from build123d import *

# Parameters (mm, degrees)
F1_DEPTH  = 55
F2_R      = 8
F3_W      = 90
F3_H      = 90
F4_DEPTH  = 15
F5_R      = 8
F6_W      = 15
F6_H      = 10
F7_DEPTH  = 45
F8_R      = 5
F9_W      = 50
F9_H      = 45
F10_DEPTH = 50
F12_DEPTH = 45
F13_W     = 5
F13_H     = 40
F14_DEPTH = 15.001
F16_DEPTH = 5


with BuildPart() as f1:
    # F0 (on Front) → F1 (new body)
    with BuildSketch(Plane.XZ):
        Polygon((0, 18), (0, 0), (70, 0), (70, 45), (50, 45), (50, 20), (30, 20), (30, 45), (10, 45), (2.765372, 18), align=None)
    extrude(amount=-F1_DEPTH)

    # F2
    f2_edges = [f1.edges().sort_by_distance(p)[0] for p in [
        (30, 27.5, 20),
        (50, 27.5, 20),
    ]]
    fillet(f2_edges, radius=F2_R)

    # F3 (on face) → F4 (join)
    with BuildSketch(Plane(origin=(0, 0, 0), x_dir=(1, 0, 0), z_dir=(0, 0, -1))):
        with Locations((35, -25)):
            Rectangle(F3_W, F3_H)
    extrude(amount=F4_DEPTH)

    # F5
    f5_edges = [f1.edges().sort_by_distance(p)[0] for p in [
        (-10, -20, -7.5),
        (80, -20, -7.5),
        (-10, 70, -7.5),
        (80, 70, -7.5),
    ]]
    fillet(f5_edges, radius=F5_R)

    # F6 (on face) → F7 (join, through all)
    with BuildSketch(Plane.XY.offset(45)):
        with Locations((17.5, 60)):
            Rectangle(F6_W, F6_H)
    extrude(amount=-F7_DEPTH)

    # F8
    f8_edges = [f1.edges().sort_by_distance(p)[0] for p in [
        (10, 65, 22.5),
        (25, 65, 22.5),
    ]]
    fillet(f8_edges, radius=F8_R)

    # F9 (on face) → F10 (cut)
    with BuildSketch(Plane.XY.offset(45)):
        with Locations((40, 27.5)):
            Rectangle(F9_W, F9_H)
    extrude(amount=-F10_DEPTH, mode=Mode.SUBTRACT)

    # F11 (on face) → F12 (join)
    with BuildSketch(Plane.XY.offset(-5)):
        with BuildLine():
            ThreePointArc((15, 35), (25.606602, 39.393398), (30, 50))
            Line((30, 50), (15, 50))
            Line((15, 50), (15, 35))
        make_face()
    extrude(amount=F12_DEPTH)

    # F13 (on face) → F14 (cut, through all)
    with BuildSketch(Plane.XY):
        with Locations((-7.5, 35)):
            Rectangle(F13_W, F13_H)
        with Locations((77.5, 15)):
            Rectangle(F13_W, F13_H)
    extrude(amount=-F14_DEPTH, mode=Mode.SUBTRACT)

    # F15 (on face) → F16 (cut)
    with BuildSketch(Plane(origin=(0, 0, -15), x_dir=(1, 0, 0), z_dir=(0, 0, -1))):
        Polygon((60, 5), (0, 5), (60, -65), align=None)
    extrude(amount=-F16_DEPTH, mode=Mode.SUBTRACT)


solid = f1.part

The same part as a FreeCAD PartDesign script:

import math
import FreeCAD as App
import Part
import Sketcher
from FreeCAD import Vector
Q = App.Units.Quantity


def edges_at(feature, points):
    """Names of the edges that pass closest to the given points."""
    edges = feature.Shape.Edges
    near = lambda p: min(range(len(edges)), key=lambda i: edges[i].distToShape(Part.Vertex(*p))[0])
    return sorted({f"Edge{near(p) + 1}" for p in points})


def add_polygon(sketch, points):
    """Adds a closed chain of lines whose ends are joined by coincident constraints."""
    first, n = sketch.GeometryCount, len(points)
    for a, b in zip(points, points[1:] + points[:1]):
        sketch.addGeometry(Part.LineSegment(App.Vector(*a, 0), App.Vector(*b, 0)), False)
    for i in range(n):
        sketch.addConstraint(Sketcher.Constraint("Coincident", first + i, 2, first + (i + 1) % n, 1))

doc = App.newDocument("Part")
body = doc.addObject("PartDesign::Body", "Body")

# Sketch on XZ plane
sketch1 = body.newObject("Sketcher::SketchObject", "Sketch")
sketch1.AttachmentSupport = (doc.getObject("XZ_Plane"), [""])
sketch1.MapMode = "FlatFace"
add_polygon(sketch1, [(0, 18), (0, 0), (70, 0), (70, 45), (50, 45), (50, 20), (30, 20), (30, 45), (10, 45), (2.8, 18)])  # lines 0-9
sketch1.addConstraint(Sketcher.Constraint("Vertical", 0))
sketch1.addConstraint(Sketcher.Constraint("Horizontal", 1))
sketch1.addConstraint(Sketcher.Constraint("Vertical", 2))
sketch1.addConstraint(Sketcher.Constraint("Horizontal", 3))
sketch1.addConstraint(Sketcher.Constraint("Vertical", 4))
sketch1.addConstraint(Sketcher.Constraint("Horizontal", 5))
sketch1.addConstraint(Sketcher.Constraint("Vertical", 6))
sketch1.addConstraint(Sketcher.Constraint("Horizontal", 7))
sketch1.addConstraint(Sketcher.Constraint("Horizontal", 9))
sketch1.addConstraint(Sketcher.Constraint("Coincident", 0, 2, -1, 1))
sketch1.addConstraint(Sketcher.Constraint("Horizontal", 3, 2, 6, 2))
sketch1.addConstraint(Sketcher.Constraint("Equal", 3, 5))
sketch1.addConstraint(Sketcher.Constraint("Equal", 5, 7))
sketch1.addConstraint(Sketcher.Constraint("DistanceX", 1, 1, 1, 2, Q("70 mm")))
sketch1.addConstraint(Sketcher.Constraint("DistanceX", 3, 2, 3, 1, Q("20 mm")))
sketch1.addConstraint(Sketcher.Constraint("DistanceY", 0, 2, 0, 1, Q("18 mm")))
sketch1.addConstraint(Sketcher.Constraint("DistanceY", 2, 1, 2, 2, Q("45 mm")))
sketch1.addConstraint(Sketcher.Constraint("DistanceY", 4, 2, 4, 1, Q("25 mm")))
sketch1.addConstraint(Sketcher.Constraint("Angle", 8, Q("-105 deg")))
pad1 = body.newObject("PartDesign::Pad", "Pad")
pad1.Profile = sketch1
pad1.Length = 55
pad1.Reversed = True
doc.recompute()

fillet = body.newObject("PartDesign::Fillet", "Fillet")
fillet.Base = (pad1, edges_at(pad1, [(30, 27.5, 20), (50, 27.5, 20)]))
fillet.Radius = 8

# Sketch on XY plane
sketch2 = body.newObject("Sketcher::SketchObject", "Sketch001")
sketch2.AttachmentSupport = (doc.getObject("XY_Plane"), [""])
sketch2.MapMode = "FlatFace"
add_polygon(sketch2, [(-10, -20), (-10, 70), (80, 70), (80, -20)])  # lines 0-3
sketch2.addConstraint(Sketcher.Constraint("Vertical", 0))
sketch2.addConstraint(Sketcher.Constraint("Horizontal", 1))
sketch2.addConstraint(Sketcher.Constraint("Vertical", 2))
sketch2.addConstraint(Sketcher.Constraint("Horizontal", 3))
sketch2.addConstraint(Sketcher.Constraint("Equal", 3, 0))
sketch2.addConstraint(Sketcher.Constraint("DistanceX", 1, 1, 1, 2, Q("90 mm")))
sketch2.addConstraint(Sketcher.Constraint("DistanceX", 0, 2, -1, 1, Q("10 mm")))
sketch2.addConstraint(Sketcher.Constraint("DistanceY", -1, 1, 0, 2, Q("70 mm")))
pad2 = body.newObject("PartDesign::Pad", "Pad001")
pad2.Profile = sketch2
pad2.Length = 15
pad2.Reversed = True
doc.recompute()

fillet2 = body.newObject("PartDesign::Fillet", "Fillet001")
fillet2.Base = (pad2, edges_at(pad2, [
    (-10, -20, -7.5),
    (80, -20, -7.5),
    (-10, 70, -7.5),
    (80, 70, -7.5),
]))
fillet2.Radius = 8

# Sketch on XY plane
sketch3 = body.newObject("Sketcher::SketchObject", "Sketch002")
sketch3.AttachmentSupport = (doc.getObject("XY_Plane"), [""])
sketch3.MapMode = "FlatFace"
sketch3.AttachmentOffset = App.Placement(Vector(0, 0, 45), App.Rotation())
add_polygon(sketch3, [(10, 65), (10, 55), (25, 55), (25, 65)])  # lines 0-3
sketch3.addConstraint(Sketcher.Constraint("Vertical", 0))
sketch3.addConstraint(Sketcher.Constraint("Horizontal", 1))
sketch3.addConstraint(Sketcher.Constraint("Vertical", 2))
sketch3.addConstraint(Sketcher.Constraint("Horizontal", 3))
sketch3.addConstraint(Sketcher.Constraint("DistanceX", 1, 1, 1, 2, Q("15 mm")))
sketch3.addConstraint(Sketcher.Constraint("DistanceY", 0, 2, 0, 1, Q("10 mm")))
sketch3.addConstraint(Sketcher.Constraint("DistanceX", -1, 1, 0, 2, Q("10 mm")))
sketch3.addConstraint(Sketcher.Constraint("DistanceY", -1, 1, 0, 2, Q("55 mm")))
pad3 = body.newObject("PartDesign::Pad", "Pad002")
pad3.Profile = sketch3
pad3.Type = "UpToLast"
pad3.Reversed = True
doc.recompute()

fillet3 = body.newObject("PartDesign::Fillet", "Fillet002")
fillet3.Base = (pad3, edges_at(pad3, [(10, 65, 22.5), (25, 65, 22.5)]))
fillet3.Radius = 5

# Sketch on XY plane
sketch4 = body.newObject("Sketcher::SketchObject", "Sketch003")
sketch4.AttachmentSupport = (doc.getObject("XY_Plane"), [""])
sketch4.MapMode = "FlatFace"
sketch4.AttachmentOffset = App.Placement(Vector(0, 0, 45), App.Rotation())
add_polygon(sketch4, [(15, 50), (15, 5), (65, 5), (65, 50)])  # lines 0-3
sketch4.addConstraint(Sketcher.Constraint("Vertical", 0))
sketch4.addConstraint(Sketcher.Constraint("Horizontal", 1))
sketch4.addConstraint(Sketcher.Constraint("Vertical", 2))
sketch4.addConstraint(Sketcher.Constraint("Horizontal", 3))
sketch4.addConstraint(Sketcher.Constraint("DistanceX", 1, 1, 1, 2, Q("50 mm")))
sketch4.addConstraint(Sketcher.Constraint("DistanceY", 0, 2, 0, 1, Q("45 mm")))
sketch4.addConstraint(Sketcher.Constraint("DistanceX", -1, 1, 0, 2, Q("15 mm")))
sketch4.addConstraint(Sketcher.Constraint("DistanceY", -1, 1, 0, 2, Q("5 mm")))
pocket1 = body.newObject("PartDesign::Pocket", "Pocket")
pocket1.Profile = sketch4
pocket1.Length = 50

# Sketch on XY plane
sketch5 = body.newObject("Sketcher::SketchObject", "Sketch004")
sketch5.AttachmentSupport = (doc.getObject("XY_Plane"), [""])
sketch5.MapMode = "FlatFace"
sketch5.AttachmentOffset = App.Placement(Vector(0, 0, -5), App.Rotation())
sketch5.addGeometry(Part.ArcOfCircle(Part.Circle(Vector(15, 50, 0), Vector(0, 0, 1), 15), math.radians(-90), math.radians(0)), False)
sketch5.addGeometry(Part.LineSegment(Vector(30, 50, 0), Vector(15, 50, 0)), False)
sketch5.addGeometry(Part.LineSegment(Vector(15, 50, 0), Vector(15, 35, 0)), False)
sketch5.addConstraint(Sketcher.Constraint("Coincident", 0, 2, 1, 1))
sketch5.addConstraint(Sketcher.Constraint("Coincident", 1, 2, 2, 1))
sketch5.addConstraint(Sketcher.Constraint("Coincident", 2, 2, 0, 1))
sketch5.addConstraint(Sketcher.Constraint("Horizontal", 1))
sketch5.addConstraint(Sketcher.Constraint("Vertical", 2))
sketch5.addConstraint(Sketcher.Constraint("Coincident", 1, 2, 0, 3))
sketch5.addConstraint(Sketcher.Constraint("Radius", 0, Q("14.999999 mm")))
sketch5.addConstraint(Sketcher.Constraint("DistanceX", -1, 1, 0, 3, Q("15.000001 mm")))
sketch5.addConstraint(Sketcher.Constraint("DistanceY", -1, 1, 0, 3, Q("49.999999 mm")))
pad4 = body.newObject("PartDesign::Pad", "Pad003")
pad4.Profile = sketch5
pad4.Length = 45

# Sketch on XY plane
sketch6 = body.newObject("Sketcher::SketchObject", "Sketch005")
sketch6.AttachmentSupport = (doc.getObject("XY_Plane"), [""])
sketch6.MapMode = "FlatFace"
add_polygon(sketch6, [(-10, 55), (-10, 15), (-5, 15), (-5, 55)])  # lines 0-3
add_polygon(sketch6, [(75, 35), (75, -5), (80, -5), (80, 35)])  # lines 4-7
sketch6.addConstraint(Sketcher.Constraint("Vertical", 0))
sketch6.addConstraint(Sketcher.Constraint("Horizontal", 1))
sketch6.addConstraint(Sketcher.Constraint("Vertical", 2))
sketch6.addConstraint(Sketcher.Constraint("Horizontal", 3))
sketch6.addConstraint(Sketcher.Constraint("Vertical", 4))
sketch6.addConstraint(Sketcher.Constraint("Horizontal", 5))
sketch6.addConstraint(Sketcher.Constraint("Vertical", 6))
sketch6.addConstraint(Sketcher.Constraint("Horizontal", 7))
sketch6.addConstraint(Sketcher.Constraint("Equal", 3, 5))
sketch6.addConstraint(Sketcher.Constraint("Equal", 2, 4))
sketch6.addConstraint(Sketcher.Constraint("DistanceX", 1, 1, 1, 2, Q("5 mm")))
sketch6.addConstraint(Sketcher.Constraint("DistanceY", 0, 2, 0, 1, Q("40 mm")))
sketch6.addConstraint(Sketcher.Constraint("DistanceX", 0, 2, -1, 1, Q("10 mm")))
sketch6.addConstraint(Sketcher.Constraint("DistanceY", -1, 1, 0, 2, Q("15 mm")))
sketch6.addConstraint(Sketcher.Constraint("DistanceX", -1, 1, 4, 2, Q("75 mm")))
sketch6.addConstraint(Sketcher.Constraint("DistanceY", 4, 2, -1, 1, Q("5 mm")))
pocket2 = body.newObject("PartDesign::Pocket", "Pocket001")
pocket2.Profile = sketch6
pocket2.Type = "ThroughAll"

# Sketch on XY plane
sketch7 = body.newObject("Sketcher::SketchObject", "Sketch006")
sketch7.AttachmentSupport = (doc.getObject("XY_Plane"), [""])
sketch7.MapMode = "FlatFace"
sketch7.AttachmentOffset = App.Placement(Vector(0, 0, -15), App.Rotation())
add_polygon(sketch7, [(60, -5), (0, -5), (60, 65)])  # lines 0-2
sketch7.addConstraint(Sketcher.Constraint("Horizontal", 0))
sketch7.addConstraint(Sketcher.Constraint("Vertical", 2))
sketch7.addConstraint(Sketcher.Constraint("PointOnObject", 0, 2, -2))
sketch7.addConstraint(Sketcher.Constraint("DistanceX", 0, 2, 0, 1, Q("60 mm")))
sketch7.addConstraint(Sketcher.Constraint("DistanceY", 2, 2, 2, 1, Q("70 mm")))
sketch7.addConstraint(Sketcher.Constraint("DistanceY", 0, 2, -1, 1, Q("5 mm")))
pocket3 = body.newObject("PartDesign::Pocket", "Pocket002")
pocket3.Profile = sketch7
pocket3.Length = 5
pocket3.Reversed = True

doc.recompute()
